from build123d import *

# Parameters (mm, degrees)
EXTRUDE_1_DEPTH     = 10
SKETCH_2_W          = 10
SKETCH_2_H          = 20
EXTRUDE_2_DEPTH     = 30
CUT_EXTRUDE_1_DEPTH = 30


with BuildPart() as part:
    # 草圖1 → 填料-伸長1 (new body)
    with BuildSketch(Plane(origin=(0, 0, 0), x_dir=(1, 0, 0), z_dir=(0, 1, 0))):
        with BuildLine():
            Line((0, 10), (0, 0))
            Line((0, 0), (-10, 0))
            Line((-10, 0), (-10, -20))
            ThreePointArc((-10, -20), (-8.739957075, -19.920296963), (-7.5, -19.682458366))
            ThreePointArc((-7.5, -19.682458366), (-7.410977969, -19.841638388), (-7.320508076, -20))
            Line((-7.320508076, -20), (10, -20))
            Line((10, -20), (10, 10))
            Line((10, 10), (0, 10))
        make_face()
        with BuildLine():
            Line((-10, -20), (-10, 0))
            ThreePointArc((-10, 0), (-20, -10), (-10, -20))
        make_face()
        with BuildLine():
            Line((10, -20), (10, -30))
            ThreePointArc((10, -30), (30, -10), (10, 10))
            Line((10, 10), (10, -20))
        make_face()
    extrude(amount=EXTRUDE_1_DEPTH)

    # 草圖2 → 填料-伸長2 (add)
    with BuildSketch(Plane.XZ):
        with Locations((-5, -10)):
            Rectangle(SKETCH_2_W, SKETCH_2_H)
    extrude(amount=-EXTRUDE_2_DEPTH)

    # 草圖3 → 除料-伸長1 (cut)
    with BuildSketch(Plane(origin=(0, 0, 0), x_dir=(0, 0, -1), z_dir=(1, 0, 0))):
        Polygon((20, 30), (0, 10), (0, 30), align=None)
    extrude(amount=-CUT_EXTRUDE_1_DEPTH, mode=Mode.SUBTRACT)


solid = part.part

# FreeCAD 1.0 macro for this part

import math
import FreeCAD as App
import Part
import Sketcher
from FreeCAD import Vector
Q = App.Units.Quantity

doc = App.newDocument("Part")
body = doc.addObject("PartDesign::Body", "Body")

sketch1 = body.newObject("Sketcher::SketchObject", "Sketch")
sketch1.AttachmentSupport = (doc.getObject("XZ_Plane"), [""])
sketch1.MapMode = "FlatFace"
sketch1.addGeometry([
    Part.LineSegment(Vector(0, -10, 0), Vector(0, 0, 0)),
    Part.LineSegment(Vector(0, 0, 0), Vector(-10, 0, 0)),
    Part.ArcOfCircle(Part.Circle(Vector(-10, 10, 0), Vector(0, 0, 1), 10), math.radians(90), math.radians(270)),
    Part.ArcOfCircle(Part.Circle(Vector(-10, 10, 0), Vector(0, 0, 1), 10), math.radians(75.52), math.radians(90)),
    Part.ArcOfCircle(Part.Circle(Vector(10, 10, 0), Vector(0, 0, 1), 20), math.radians(150), math.radians(151.04)),
    Part.LineSegment(Vector(-7.32, 20, 0), Vector(10, 20, 0)),
    Part.LineSegment(Vector(10, 20, 0), Vector(10, 30, 0)),
    Part.ArcOfCircle(Part.Circle(Vector(10, 10, 0), Vector(0, 0, 1), 20), math.radians(-90), math.radians(90)),
    Part.LineSegment(Vector(10, -10, 0), Vector(0, -10, 0)),
], False)
sketch1.addConstraint([
    Sketcher.Constraint("Coincident", 0, 2, 1, 1),
    Sketcher.Constraint("Tangent", 1, 2, 2, 2),
    Sketcher.Constraint("Tangent", 2, 1, 3, 2),
    Sketcher.Constraint("Coincident", 3, 1, 4, 2),
    Sketcher.Constraint("Coincident", 4, 1, 5, 1),
    Sketcher.Constraint("Coincident", 5, 2, 6, 1),
    Sketcher.Constraint("Coincident", 6, 2, 7, 2),
    Sketcher.Constraint("Tangent", 7, 1, 8, 1),
    Sketcher.Constraint("Coincident", 8, 2, 0, 1),
    Sketcher.Constraint("Vertical", 0),
    Sketcher.Constraint("Horizontal", 1),
    Sketcher.Constraint("Horizontal", 5),
    Sketcher.Constraint("Vertical", 6),
    Sketcher.Constraint("Horizontal", 8),
    Sketcher.Constraint("Coincident", 0, 2, -1, 1),
    Sketcher.Constraint("Coincident", 7, 3, 4, 3),
    Sketcher.Constraint("Equal", 2, 3),
    Sketcher.Constraint("Symmetric", 2, 3, 4, 3, -2),
    Sketcher.Constraint("Symmetric", 2, 1, 5, 2, -2),
    Sketcher.Constraint("Vertical", 1, 2, 2, 1),
    Sketcher.Constraint("Equal", 8, 0),
    Sketcher.Constraint("Radius", 2, Q("10 mm")),
    Sketcher.Constraint("Radius", 7, Q("20 mm")),
    Sketcher.Constraint("DistanceX", 3, 1, -1, 1, Q("7.5 mm")),
])
pad1 = body.newObject("PartDesign::Pad", "Pad")
pad1.Profile = sketch1
pad1.Length = 10
pad1.Reversed = True

sketch2 = body.newObject("Sketcher::SketchObject", "Sketch001")
sketch2.AttachmentSupport = (doc.getObject("XZ_Plane"), [""])
sketch2.MapMode = "FlatFace"
sketch2.addGeometry([
    Part.LineSegment(Vector(-10, 0, 0), Vector(-10, -20, 0)),
    Part.LineSegment(Vector(-10, -20, 0), Vector(0, -20, 0)),
    Part.LineSegment(Vector(0, -20, 0), Vector(0, 0, 0)),
    Part.LineSegment(Vector(0, 0, 0), Vector(-10, 0, 0)),
], False)
sketch2.addConstraint([
    Sketcher.Constraint("Coincident", 0, 2, 1, 1),
    Sketcher.Constraint("Coincident", 1, 2, 2, 1),
    Sketcher.Constraint("Coincident", 2, 2, 3, 1),
    Sketcher.Constraint("Coincident", 3, 2, 0, 1),
    Sketcher.Constraint("Vertical", 0),
    Sketcher.Constraint("Horizontal", 1),
    Sketcher.Constraint("Vertical", 2),
    Sketcher.Constraint("Horizontal", 3),
    Sketcher.Constraint("Coincident", 2, 2, -1, 1),
    Sketcher.Constraint("DistanceX", 1, 1, 1, 2, Q("10 mm")),
    Sketcher.Constraint("DistanceY", 0, 2, 0, 1, Q("20 mm")),
])
pad2 = body.newObject("PartDesign::Pad", "Pad001")
pad2.Profile = sketch2
pad2.Length = 30
pad2.Reversed = True

sketch3 = body.newObject("Sketcher::SketchObject", "Sketch002")
sketch3.AttachmentSupport = (doc.getObject("YZ_Plane"), [""])
sketch3.MapMode = "FlatFace"
sketch3.addGeometry([
    Part.LineSegment(Vector(10, 0, 0), Vector(30, -20, 0)),
    Part.LineSegment(Vector(30, -20, 0), Vector(30, 0, 0)),
    Part.LineSegment(Vector(30, 0, 0), Vector(10, 0, 0)),
], False)
sketch3.addConstraint([
    Sketcher.Constraint("Coincident", 0, 2, 1, 1),
    Sketcher.Constraint("Coincident", 1, 2, 2, 1),
    Sketcher.Constraint("Coincident", 2, 2, 0, 1),
    Sketcher.Constraint("Vertical", 1),
    Sketcher.Constraint("Horizontal", 2),
    Sketcher.Constraint("PointOnObject", 1, 2, -1),
    Sketcher.Constraint("Equal", 2, 1),
    Sketcher.Constraint("DistanceX", 2, 2, 2, 1, Q("20 mm")),
    Sketcher.Constraint("DistanceX", -1, 1, 0, 2, Q("30 mm")),
])
pocket1 = body.newObject("PartDesign::Pocket", "Pocket")
pocket1.Profile = sketch3
pocket1.Length = 30

doc.recompute()
